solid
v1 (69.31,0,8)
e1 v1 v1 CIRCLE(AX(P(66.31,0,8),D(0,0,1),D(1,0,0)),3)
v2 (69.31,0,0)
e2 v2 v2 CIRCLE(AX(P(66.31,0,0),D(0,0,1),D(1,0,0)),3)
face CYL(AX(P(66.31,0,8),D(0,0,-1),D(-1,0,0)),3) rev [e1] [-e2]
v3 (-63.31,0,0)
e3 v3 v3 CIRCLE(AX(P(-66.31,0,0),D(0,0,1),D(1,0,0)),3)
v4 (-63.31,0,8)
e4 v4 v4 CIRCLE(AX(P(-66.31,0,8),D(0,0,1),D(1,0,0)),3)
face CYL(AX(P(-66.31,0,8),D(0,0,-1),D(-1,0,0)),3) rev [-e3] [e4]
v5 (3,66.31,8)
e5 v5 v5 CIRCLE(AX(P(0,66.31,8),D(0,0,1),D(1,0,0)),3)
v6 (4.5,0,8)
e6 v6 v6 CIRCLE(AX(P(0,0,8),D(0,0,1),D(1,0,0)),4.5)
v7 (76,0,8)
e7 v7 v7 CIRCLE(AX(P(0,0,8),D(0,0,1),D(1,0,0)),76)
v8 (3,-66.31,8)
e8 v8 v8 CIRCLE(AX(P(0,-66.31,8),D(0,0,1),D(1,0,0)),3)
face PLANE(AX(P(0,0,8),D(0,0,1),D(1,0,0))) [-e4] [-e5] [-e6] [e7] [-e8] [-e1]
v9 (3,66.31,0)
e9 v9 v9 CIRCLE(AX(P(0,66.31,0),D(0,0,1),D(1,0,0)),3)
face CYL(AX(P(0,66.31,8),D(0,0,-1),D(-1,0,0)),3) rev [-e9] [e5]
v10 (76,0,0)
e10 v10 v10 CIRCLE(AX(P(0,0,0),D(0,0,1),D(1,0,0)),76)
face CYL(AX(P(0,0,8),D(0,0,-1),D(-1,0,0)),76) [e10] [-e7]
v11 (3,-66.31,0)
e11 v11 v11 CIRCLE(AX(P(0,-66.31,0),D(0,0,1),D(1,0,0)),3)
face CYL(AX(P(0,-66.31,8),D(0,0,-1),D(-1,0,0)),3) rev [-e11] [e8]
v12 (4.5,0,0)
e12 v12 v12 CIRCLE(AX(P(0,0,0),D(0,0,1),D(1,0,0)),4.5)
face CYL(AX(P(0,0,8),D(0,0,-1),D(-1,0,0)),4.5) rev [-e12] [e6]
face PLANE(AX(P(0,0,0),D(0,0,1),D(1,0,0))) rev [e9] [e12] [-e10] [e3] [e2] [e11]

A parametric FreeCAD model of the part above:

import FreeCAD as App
import Part
import Sketcher
from FreeCAD import Vector
Q = App.Units.Quantity

doc = App.newDocument("Part")
body = doc.addObject("PartDesign::Body", "Body")

sketch1 = doc.addObject("Sketcher::SketchObject", "Sketch")
body.addObject(sketch1)
sketch1.AttachmentSupport = (doc.XY_Plane, [""])
sketch1.MapMode = "FlatFace"
sketch1.addGeometry([
    Part.Circle(Vector(0, 0, 0), Vector(0, 0, 1), 76),
    Part.Circle(Vector(0, -66.3, 0), Vector(0, 0, 1), 3),
    Part.Circle(Vector(-66.3, 0, 0), Vector(0, 0, 1), 3),
    Part.Circle(Vector(0, 0, 0), Vector(0, 0, 1), 4.5),
    Part.Circle(Vector(66.3, 0, 0), Vector(0, 0, 1), 3),
    Part.Circle(Vector(0, 66.3, 0), Vector(0, 0, 1), 3),
], False)
sketch1.addConstraint([
    Sketcher.Constraint("Coincident", 0, 3, -1, 1),
    Sketcher.Constraint("Coincident", 3, 3, -1, 1),
    Sketcher.Constraint("Equal", 1, 2),
    Sketcher.Constraint("Equal", 2, 4),
    Sketcher.Constraint("Equal", 4, 5),
    Sketcher.Constraint("Symmetric", 2, 3, 4, 3, -1, 1),
    Sketcher.Constraint("Symmetric", 1, 3, 5, 3, -1, 1),
    Sketcher.Constraint("PointOnObject", 1, 3, -2),
    Sketcher.Constraint("PointOnObject", 2, 3, -1),
    Sketcher.Constraint("Diameter", 0, Q("152 mm")),
    Sketcher.Constraint("Diameter", 1, Q("6 mm")),
    Sketcher.Constraint("Diameter", 3, Q("9 mm")),
    Sketcher.Constraint("DistanceY", 1, 3, -1, 1, Q("66.31 mm")),
    Sketcher.Constraint("DistanceX", 2, 3, -1, 1, Q("66.31 mm")),
])
pad1 = doc.addObject("PartDesign::Pad", "Pad")
body.addObject(pad1)
pad1.Profile = sketch1
pad1.Length = 8

doc.recompute()
